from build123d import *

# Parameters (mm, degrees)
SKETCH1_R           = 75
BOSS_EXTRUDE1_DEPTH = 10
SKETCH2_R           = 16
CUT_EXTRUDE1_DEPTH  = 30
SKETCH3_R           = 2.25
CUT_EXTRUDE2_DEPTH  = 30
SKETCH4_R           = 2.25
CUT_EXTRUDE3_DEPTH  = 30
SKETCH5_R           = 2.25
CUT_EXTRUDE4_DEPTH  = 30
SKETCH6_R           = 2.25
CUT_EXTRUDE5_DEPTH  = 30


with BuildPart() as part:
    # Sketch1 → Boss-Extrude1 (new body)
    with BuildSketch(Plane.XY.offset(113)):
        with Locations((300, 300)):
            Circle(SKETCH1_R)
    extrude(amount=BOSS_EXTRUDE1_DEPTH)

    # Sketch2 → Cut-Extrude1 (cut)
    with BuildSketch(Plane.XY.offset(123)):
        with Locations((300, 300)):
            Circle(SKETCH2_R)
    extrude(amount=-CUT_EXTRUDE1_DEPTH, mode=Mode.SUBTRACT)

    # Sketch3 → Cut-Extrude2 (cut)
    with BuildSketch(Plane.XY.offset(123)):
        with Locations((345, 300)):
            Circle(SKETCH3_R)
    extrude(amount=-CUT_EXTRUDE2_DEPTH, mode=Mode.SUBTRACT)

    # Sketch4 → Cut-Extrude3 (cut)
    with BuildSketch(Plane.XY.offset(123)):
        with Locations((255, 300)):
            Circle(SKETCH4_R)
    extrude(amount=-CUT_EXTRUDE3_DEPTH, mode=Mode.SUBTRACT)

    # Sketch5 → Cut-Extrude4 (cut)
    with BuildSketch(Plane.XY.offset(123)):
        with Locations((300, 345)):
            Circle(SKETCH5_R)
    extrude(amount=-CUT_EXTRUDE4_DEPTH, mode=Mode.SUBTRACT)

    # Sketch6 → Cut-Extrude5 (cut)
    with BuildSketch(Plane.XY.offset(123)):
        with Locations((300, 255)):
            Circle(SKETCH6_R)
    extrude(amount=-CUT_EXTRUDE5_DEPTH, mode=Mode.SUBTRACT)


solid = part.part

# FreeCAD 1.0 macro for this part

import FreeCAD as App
import Part
import Sketcher

doc = App.newDocument("Part")
body = doc.addObject("PartDesign::Body", "Body")

# Sketch on XY plane
sketch1 = doc.addObject("Sketcher::SketchObject", "Sketch")
body.addObject(sketch1)
sketch1.AttachmentSupport = (doc.XY_Plane, [""])
sketch1.MapMode = "FlatFace"
sketch1.AttachmentOffset = App.Placement(App.Vector(0, 0, 113), App.Rotation())
sketch1.addGeometry(Part.Circle(App.Vector(300, 300, 0), App.Vector(0, 0, 1), 75), False)
sketch1.addConstraint(Sketcher.Constraint("Diameter", 0, 150.0))
sketch1.addConstraint(Sketcher.Constraint("DistanceX", -1, 1, 0, 3, 300.0))
sketch1.addConstraint(Sketcher.Constraint("DistanceY", -1, 1, 0, 3, 300.0))
pad1 = doc.addObject("PartDesign::Pad", "Pad")
body.addObject(pad1)
pad1.Profile = sketch1
pad1.Length = 10

# Sketch on XY plane
sketch2 = doc.addObject("Sketcher::SketchObject", "Sketch001")
body.addObject(sketch2)
sketch2.AttachmentSupport = (doc.XY_Plane, [""])
sketch2.MapMode = "FlatFace"
sketch2.AttachmentOffset = App.Placement(App.Vector(0, 0, 123), App.Rotation())
sketch2.addGeometry(Part.Circle(App.Vector(300, 300, 0), App.Vector(0, 0, 1), 16), False)
sketch2.addConstraint(Sketcher.Constraint("Diameter", 0, 32.0))
sketch2.addConstraint(Sketcher.Constraint("DistanceX", -1, 1, 0, 3, 300.0))
sketch2.addConstraint(Sketcher.Constraint("DistanceY", -1, 1, 0, 3, 300.0))
pocket1 = doc.addObject("PartDesign::Pocket", "Pocket")
body.addObject(pocket1)
pocket1.Profile = sketch2
pocket1.Length = 30

# Sketch on XY plane
sketch3 = doc.addObject("Sketcher::SketchObject", "Sketch002")
body.addObject(sketch3)
sketch3.AttachmentSupport = (doc.XY_Plane, [""])
sketch3.MapMode = "FlatFace"
sketch3.AttachmentOffset = App.Placement(App.Vector(0, 0, 123), App.Rotation())
sketch3.addGeometry(Part.Circle(App.Vector(345, 300, 0), App.Vector(0, 0, 1), 2.2), False)
sketch3.addConstraint(Sketcher.Constraint("Diameter", 0, 4.5))
sketch3.addConstraint(Sketcher.Constraint("DistanceX", -1, 1, 0, 3, 345.0))
sketch3.addConstraint(Sketcher.Constraint("DistanceY", -1, 1, 0, 3, 300.0))
pocket2 = doc.addObject("PartDesign::Pocket", "Pocket001")
body.addObject(pocket2)
pocket2.Profile = sketch3
pocket2.Length = 30

# Sketch on XY plane
sketch4 = doc.addObject("Sketcher::SketchObject", "Sketch003")
body.addObject(sketch4)
sketch4.AttachmentSupport = (doc.XY_Plane, [""])
sketch4.MapMode = "FlatFace"
sketch4.AttachmentOffset = App.Placement(App.Vector(0, 0, 123), App.Rotation())
sketch4.addGeometry(Part.Circle(App.Vector(255, 300, 0), App.Vector(0, 0, 1), 2.2), False)
sketch4.addConstraint(Sketcher.Constraint("Diameter", 0, 4.5))
sketch4.addConstraint(Sketcher.Constraint("DistanceX", -1, 1, 0, 3, 255.0))
sketch4.addConstraint(Sketcher.Constraint("DistanceY", -1, 1, 0, 3, 300.0))
pocket3 = doc.addObject("PartDesign::Pocket", "Pocket002")
body.addObject(pocket3)
pocket3.Profile = sketch4
pocket3.Length = 30

# Sketch on XY plane
sketch5 = doc.addObject("Sketcher::SketchObject", "Sketch004")
body.addObject(sketch5)
sketch5.AttachmentSupport = (doc.XY_Plane, [""])
sketch5.MapMode = "FlatFace"
sketch5.AttachmentOffset = App.Placement(App.Vector(0, 0, 123), App.Rotation())
sketch5.addGeometry(Part.Circle(App.Vector(300, 345, 0), App.Vector(0, 0, 1), 2.2), False)
sketch5.addConstraint(Sketcher.Constraint("Diameter", 0, 4.5))
sketch5.addConstraint(Sketcher.Constraint("DistanceX", -1, 1, 0, 3, 300.0))
sketch5.addConstraint(Sketcher.Constraint("DistanceY", -1, 1, 0, 3, 345.0))
pocket4 = doc.addObject("PartDesign::Pocket", "Pocket003")
body.addObject(pocket4)
pocket4.Profile = sketch5
pocket4.Length = 30

# Sketch on XY plane
sketch6 = doc.addObject("Sketcher::SketchObject", "Sketch005")
body.addObject(sketch6)
sketch6.AttachmentSupport = (doc.XY_Plane, [""])
sketch6.MapMode = "FlatFace"
sketch6.AttachmentOffset = App.Placement(App.Vector(0, 0, 123), App.Rotation())
sketch6.addGeometry(Part.Circle(App.Vector(300, 255, 0), App.Vector(0, 0, 1), 2.2), False)
sketch6.addConstraint(Sketcher.Constraint("Diameter", 0, 4.5))
sketch6.addConstraint(Sketcher.Constraint("DistanceX", -1, 1, 0, 3, 300.0))
sketch6.addConstraint(Sketcher.Constraint("DistanceY", -1, 1, 0, 3, 255.0))
pocket5 = doc.addObject("PartDesign::Pocket", "Pocket004")
body.addObject(pocket5)
pocket5.Profile = sketch6
pocket5.Length = 30

doc.recompute()
